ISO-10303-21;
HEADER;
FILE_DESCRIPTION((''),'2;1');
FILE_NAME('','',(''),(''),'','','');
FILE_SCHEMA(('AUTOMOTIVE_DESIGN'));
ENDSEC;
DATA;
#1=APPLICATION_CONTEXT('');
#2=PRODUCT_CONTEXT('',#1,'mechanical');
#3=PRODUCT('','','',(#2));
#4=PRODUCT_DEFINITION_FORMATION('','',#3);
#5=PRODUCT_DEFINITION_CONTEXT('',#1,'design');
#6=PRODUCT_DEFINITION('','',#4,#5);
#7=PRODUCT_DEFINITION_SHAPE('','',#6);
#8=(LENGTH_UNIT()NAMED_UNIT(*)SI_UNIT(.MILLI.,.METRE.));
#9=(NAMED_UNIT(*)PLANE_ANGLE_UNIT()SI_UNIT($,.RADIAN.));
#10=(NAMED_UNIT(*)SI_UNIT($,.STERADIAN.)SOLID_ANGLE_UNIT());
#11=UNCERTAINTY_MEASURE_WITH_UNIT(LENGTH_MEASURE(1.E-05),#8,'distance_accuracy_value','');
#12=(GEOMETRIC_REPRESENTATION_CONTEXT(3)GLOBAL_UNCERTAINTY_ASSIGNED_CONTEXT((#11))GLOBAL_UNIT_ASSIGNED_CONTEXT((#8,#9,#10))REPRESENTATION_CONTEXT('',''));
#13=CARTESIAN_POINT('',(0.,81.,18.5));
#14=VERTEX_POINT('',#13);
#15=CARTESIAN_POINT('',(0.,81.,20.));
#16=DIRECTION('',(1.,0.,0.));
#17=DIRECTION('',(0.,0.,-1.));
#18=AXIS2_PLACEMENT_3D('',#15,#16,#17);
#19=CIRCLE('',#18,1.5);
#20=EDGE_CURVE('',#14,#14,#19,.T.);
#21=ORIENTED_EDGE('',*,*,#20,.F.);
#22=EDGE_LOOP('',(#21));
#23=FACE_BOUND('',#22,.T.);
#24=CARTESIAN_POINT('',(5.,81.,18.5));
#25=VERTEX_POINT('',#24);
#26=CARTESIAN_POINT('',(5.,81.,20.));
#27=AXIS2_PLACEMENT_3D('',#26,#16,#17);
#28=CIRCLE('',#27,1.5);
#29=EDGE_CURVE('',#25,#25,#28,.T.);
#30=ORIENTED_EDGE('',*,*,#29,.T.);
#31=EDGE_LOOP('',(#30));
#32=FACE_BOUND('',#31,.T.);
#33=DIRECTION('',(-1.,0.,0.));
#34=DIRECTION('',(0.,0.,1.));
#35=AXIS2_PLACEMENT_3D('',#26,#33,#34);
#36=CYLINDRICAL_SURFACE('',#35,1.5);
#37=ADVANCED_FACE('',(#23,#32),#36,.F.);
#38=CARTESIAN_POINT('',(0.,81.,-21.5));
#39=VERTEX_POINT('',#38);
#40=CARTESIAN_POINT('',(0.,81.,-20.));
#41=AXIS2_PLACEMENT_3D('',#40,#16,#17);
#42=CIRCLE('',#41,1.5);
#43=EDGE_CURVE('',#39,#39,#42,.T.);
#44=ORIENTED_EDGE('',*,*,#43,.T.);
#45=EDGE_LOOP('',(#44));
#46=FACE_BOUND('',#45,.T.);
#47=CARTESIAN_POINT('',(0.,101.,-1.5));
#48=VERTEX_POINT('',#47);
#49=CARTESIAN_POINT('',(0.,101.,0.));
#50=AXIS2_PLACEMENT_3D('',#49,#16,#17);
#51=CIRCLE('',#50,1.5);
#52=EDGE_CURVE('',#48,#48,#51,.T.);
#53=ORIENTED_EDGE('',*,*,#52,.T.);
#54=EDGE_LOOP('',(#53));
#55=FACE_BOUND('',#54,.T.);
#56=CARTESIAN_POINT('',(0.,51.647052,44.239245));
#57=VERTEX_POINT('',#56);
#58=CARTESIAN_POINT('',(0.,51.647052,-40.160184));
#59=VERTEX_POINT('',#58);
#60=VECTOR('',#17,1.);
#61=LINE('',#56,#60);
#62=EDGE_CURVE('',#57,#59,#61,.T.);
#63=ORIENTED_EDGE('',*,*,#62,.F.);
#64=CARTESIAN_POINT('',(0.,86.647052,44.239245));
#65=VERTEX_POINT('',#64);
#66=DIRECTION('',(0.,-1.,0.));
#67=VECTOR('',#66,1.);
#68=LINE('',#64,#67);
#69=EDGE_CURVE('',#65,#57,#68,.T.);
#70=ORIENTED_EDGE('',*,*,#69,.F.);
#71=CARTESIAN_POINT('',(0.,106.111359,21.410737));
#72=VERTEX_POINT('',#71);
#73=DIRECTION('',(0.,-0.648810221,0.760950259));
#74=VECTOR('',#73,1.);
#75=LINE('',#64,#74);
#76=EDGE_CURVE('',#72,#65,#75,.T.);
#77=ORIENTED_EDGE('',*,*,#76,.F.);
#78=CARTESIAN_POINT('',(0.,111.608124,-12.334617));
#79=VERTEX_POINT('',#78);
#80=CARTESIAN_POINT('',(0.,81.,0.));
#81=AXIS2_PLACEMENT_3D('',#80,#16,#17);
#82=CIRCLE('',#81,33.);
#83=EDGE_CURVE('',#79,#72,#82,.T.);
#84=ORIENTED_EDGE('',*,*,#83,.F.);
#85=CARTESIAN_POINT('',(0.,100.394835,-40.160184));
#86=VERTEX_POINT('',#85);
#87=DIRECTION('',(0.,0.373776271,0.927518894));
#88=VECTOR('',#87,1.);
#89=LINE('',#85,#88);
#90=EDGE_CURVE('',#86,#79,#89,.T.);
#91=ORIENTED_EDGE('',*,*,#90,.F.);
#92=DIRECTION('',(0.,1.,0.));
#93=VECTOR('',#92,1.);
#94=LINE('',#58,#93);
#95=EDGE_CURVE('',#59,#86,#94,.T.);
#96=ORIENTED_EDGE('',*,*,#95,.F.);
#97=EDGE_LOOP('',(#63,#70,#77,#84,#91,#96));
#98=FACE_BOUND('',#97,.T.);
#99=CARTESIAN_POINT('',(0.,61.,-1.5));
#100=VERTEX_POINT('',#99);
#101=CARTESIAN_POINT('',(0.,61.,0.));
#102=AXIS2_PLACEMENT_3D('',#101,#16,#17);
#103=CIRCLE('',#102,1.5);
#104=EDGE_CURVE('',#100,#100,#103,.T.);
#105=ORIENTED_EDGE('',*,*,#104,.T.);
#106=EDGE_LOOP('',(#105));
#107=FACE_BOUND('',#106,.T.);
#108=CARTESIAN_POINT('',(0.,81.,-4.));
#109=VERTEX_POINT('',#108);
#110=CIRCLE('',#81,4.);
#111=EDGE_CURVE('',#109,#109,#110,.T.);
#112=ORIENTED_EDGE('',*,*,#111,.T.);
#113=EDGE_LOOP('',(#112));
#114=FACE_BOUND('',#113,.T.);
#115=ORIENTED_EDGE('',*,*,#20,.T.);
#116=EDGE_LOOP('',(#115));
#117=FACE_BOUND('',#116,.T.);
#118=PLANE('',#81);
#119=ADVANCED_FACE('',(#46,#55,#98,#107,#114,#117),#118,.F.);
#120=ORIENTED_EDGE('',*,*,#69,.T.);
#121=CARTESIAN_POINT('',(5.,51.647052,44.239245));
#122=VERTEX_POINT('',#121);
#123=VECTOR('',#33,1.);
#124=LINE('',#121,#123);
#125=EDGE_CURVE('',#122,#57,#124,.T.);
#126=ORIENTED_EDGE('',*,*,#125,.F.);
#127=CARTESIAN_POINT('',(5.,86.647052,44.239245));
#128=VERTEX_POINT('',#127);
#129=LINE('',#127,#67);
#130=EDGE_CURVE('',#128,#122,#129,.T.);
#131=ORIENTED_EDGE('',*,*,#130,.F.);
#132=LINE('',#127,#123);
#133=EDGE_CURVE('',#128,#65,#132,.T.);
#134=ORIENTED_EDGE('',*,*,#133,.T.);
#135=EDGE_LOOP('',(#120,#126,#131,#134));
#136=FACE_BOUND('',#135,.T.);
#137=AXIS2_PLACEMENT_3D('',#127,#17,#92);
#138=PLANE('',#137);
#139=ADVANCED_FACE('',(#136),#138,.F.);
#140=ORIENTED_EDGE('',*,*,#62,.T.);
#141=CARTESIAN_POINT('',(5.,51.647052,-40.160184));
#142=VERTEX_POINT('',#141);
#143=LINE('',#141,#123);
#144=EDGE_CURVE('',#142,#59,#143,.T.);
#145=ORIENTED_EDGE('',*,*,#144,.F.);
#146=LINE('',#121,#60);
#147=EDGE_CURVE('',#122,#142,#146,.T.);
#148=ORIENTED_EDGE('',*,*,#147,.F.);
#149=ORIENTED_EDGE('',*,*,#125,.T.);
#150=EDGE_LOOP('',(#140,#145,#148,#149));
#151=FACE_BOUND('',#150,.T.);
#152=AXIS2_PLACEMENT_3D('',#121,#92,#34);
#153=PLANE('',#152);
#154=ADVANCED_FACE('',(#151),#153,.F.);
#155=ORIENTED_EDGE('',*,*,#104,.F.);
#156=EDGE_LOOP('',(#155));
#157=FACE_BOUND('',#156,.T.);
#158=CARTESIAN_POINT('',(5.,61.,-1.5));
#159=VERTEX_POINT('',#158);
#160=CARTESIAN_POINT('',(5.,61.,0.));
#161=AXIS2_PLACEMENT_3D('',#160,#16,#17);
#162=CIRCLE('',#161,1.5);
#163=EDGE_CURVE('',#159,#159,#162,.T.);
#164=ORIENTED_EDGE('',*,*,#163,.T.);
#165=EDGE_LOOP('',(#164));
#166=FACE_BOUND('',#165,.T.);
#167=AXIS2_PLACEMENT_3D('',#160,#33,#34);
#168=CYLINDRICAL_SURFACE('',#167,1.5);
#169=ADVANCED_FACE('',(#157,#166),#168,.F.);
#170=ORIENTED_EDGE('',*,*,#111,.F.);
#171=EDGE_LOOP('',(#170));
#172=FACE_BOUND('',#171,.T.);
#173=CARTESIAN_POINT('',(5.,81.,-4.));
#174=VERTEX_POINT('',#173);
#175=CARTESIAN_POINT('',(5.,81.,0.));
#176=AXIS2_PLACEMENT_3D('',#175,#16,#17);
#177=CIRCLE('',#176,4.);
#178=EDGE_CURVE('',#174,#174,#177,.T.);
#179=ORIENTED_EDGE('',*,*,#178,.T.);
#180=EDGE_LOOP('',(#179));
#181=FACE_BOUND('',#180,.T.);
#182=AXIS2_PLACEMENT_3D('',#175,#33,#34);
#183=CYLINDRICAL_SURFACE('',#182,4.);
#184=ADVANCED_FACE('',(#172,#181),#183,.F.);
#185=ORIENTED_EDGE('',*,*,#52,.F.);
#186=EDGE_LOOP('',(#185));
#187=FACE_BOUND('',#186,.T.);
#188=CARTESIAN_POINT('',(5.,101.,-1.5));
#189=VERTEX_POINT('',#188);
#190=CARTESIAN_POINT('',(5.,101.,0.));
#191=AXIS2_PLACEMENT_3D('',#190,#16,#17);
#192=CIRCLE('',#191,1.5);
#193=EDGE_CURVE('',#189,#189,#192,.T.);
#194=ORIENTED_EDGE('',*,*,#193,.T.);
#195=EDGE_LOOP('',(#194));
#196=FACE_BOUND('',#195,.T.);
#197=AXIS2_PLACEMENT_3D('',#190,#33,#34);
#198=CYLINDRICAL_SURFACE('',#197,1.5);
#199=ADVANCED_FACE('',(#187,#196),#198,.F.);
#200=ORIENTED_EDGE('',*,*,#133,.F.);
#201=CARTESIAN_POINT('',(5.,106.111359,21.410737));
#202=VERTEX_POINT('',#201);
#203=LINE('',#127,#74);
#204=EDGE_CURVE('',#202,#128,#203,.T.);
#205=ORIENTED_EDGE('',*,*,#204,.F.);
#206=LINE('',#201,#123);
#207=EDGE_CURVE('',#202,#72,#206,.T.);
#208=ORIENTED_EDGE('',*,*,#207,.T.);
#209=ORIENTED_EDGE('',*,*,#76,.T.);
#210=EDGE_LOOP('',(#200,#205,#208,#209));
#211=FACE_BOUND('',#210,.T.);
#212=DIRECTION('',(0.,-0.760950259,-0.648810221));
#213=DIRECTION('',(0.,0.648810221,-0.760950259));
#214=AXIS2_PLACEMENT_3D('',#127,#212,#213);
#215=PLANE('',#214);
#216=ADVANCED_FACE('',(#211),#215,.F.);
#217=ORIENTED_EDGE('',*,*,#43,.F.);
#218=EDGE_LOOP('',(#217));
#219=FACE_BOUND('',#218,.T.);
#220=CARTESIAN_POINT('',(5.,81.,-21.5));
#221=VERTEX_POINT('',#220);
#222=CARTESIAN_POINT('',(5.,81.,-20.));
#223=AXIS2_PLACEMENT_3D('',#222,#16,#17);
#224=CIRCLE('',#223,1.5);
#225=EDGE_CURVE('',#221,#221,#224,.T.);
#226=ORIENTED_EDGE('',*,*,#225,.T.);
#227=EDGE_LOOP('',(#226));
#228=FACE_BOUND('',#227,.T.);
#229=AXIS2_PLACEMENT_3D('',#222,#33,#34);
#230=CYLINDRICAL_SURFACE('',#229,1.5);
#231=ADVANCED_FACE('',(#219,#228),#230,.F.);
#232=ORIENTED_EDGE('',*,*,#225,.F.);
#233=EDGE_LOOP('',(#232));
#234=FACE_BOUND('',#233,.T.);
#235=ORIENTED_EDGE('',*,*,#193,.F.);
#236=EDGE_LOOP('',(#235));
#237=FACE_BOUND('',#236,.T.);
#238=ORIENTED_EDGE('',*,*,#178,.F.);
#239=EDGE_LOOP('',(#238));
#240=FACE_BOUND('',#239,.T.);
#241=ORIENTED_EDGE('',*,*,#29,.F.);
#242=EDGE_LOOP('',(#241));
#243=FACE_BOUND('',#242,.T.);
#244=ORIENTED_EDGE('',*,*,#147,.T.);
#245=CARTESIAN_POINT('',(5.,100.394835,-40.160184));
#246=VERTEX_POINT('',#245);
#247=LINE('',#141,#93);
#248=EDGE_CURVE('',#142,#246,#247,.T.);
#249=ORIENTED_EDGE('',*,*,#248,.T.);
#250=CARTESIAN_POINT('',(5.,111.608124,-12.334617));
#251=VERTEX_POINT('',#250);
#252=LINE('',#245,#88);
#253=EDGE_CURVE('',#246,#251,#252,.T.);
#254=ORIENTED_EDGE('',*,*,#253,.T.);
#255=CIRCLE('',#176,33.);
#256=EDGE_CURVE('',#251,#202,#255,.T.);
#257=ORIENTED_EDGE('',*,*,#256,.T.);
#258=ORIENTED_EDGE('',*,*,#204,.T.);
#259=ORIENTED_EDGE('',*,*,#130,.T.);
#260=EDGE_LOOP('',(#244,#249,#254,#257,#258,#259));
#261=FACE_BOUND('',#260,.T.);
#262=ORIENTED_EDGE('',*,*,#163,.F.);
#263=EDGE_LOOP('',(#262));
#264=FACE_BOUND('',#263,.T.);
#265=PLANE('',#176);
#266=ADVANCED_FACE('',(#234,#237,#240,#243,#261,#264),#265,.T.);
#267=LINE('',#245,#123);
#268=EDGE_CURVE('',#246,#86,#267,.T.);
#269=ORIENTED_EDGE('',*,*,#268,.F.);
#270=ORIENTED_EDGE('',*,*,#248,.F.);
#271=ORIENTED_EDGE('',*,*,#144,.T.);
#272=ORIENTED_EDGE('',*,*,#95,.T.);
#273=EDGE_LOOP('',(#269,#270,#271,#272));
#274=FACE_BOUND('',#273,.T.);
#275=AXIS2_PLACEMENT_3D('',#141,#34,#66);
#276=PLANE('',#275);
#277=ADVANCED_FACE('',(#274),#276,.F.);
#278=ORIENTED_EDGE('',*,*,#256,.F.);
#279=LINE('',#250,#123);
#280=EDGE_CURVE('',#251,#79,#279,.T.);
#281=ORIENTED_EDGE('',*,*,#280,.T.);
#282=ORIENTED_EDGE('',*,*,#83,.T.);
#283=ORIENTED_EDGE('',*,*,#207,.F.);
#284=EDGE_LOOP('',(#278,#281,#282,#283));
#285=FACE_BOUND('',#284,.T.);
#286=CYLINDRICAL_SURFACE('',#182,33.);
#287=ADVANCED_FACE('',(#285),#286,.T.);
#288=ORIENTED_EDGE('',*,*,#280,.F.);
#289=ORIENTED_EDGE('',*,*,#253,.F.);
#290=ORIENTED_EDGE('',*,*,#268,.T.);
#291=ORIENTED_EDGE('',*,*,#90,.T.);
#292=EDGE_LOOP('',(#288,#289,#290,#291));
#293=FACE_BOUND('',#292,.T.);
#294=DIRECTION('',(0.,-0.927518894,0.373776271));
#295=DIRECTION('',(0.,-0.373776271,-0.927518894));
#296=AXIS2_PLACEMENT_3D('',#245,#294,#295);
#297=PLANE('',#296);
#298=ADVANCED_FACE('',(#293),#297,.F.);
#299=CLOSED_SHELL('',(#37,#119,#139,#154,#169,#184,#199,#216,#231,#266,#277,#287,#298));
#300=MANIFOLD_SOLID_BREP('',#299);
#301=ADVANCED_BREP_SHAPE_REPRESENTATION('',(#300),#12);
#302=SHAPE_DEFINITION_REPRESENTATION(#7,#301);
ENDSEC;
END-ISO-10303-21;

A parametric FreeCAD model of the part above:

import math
import FreeCAD as App
import Part
import Sketcher

V = App.Vector

doc = App.newDocument("Part")
body = doc.addObject("PartDesign::Body", "Body")

sketch1 = body.newObject("Sketcher::SketchObject", "Sketch")
sketch1.AttachmentSupport = (doc.getObject("YZ_Plane"), [""])
sketch1.MapMode = "FlatFace"
sketch1.addGeometry(Part.LineSegment(V(51.647052, -40.160184, 0), V(100.394835, -40.160184, 0)), False)
sketch1.addGeometry(Part.LineSegment(V(100.394835, -40.160184, 0), V(111.608124, -12.334617, 0)), False)
sketch1.addGeometry(Part.ArcOfCircle(Part.Circle(V(81, 0, 0), V(0, 0, 1), 33), math.radians(-21.948699), math.radians(40.451958)), False)
sketch1.addGeometry(Part.LineSegment(V(106.111359, 21.410737, 0), V(86.647052, 44.239245, 0)), False)
sketch1.addGeometry(Part.LineSegment(V(86.647052, 44.239245, 0), V(51.647052, 44.239245, 0)), False)
sketch1.addGeometry(Part.LineSegment(V(51.647052, 44.239245, 0), V(51.647052, -40.160184, 0)), False)
sketch1.addConstraint(Sketcher.Constraint("Coincident", 0, 2, 1, 1))
sketch1.addConstraint(Sketcher.Constraint("Tangent", 1, 2, 2, 1))
sketch1.addConstraint(Sketcher.Constraint("Tangent", 2, 2, 3, 1))
sketch1.addConstraint(Sketcher.Constraint("Coincident", 3, 2, 4, 1))
sketch1.addConstraint(Sketcher.Constraint("Coincident", 4, 2, 5, 1))
sketch1.addConstraint(Sketcher.Constraint("Coincident", 5, 2, 0, 1))
sketch1.addConstraint(Sketcher.Constraint("Horizontal", 0))
sketch1.addConstraint(Sketcher.Constraint("Horizontal", 4))
sketch1.addConstraint(Sketcher.Constraint("Vertical", 5))
sketch1.addConstraint(Sketcher.Constraint("PointOnObject", 2, 3, -1))
sketch1.addConstraint(Sketcher.Constraint("Equal", 1, 3))
sketch1.addConstraint(Sketcher.Constraint("Radius", 2, 33.0))
sketch1.addConstraint(Sketcher.Constraint("DistanceX", 4, 2, 4, 1, 35.0))
sketch1.addConstraint(Sketcher.Constraint("Distance", 1, 30.0))
sketch1.addConstraint(Sketcher.Constraint("DistanceX", -1, 1, 2, 3, 81.0))
sketch1.addConstraint(Sketcher.Constraint("DistanceY", 5, 2, 5, 1, 84.399429))
sketch1.addConstraint(Sketcher.Constraint("DistanceX", 0, 1, 0, 2, 48.747783))
pad1 = body.newObject("PartDesign::Pad", "Pad")
pad1.Profile = sketch1
pad1.Length = 5

sketch2 = body.newObject("Sketcher::SketchObject", "Sketch001")
sketch2.AttachmentSupport = (doc.getObject("YZ_Plane"), [""])
sketch2.MapMode = "FlatFace"
sketch2.addGeometry(Part.Circle(V(0, 95, 0), V(0, 0, 1), 4), False)
sketch2.addGeometry(Part.Circle(V(0, -201, 0), V(0, 0, 1), 4), False)
sketch2.addGeometry(Part.Circle(V(101, 0, 0), V(0, 0, 1), 1.5), False)
sketch2.addGeometry(Part.Circle(V(61, 0, 0), V(0, 0, 1), 1.5), False)
sketch2.addGeometry(Part.Circle(V(81, -20, 0), V(0, 0, 1), 1.5), False)
sketch2.addGeometry(Part.Circle(V(81, 20, 0), V(0, 0, 1), 1.5), False)
sketch2.addGeometry(Part.Circle(V(81, 0, 0), V(0, 0, 1), 4), False)
sketch2.addConstraint(Sketcher.Constraint("Equal", 0, 1))
sketch2.addConstraint(Sketcher.Constraint("Equal", 2, 3))
sketch2.addConstraint(Sketcher.Constraint("Equal", 3, 4))
sketch2.addConstraint(Sketcher.Constraint("Equal", 4, 5))
sketch2.addConstraint(Sketcher.Constraint("Equal", 1, 6))
sketch2.addConstraint(Sketcher.Constraint("Symmetric", 4, 3, 5, 3, -1))
sketch2.addConstraint(Sketcher.Constraint("PointOnObject", 0, 3, -2))
sketch2.addConstraint(Sketcher.Constraint("PointOnObject", 1, 3, -2))
sketch2.addConstraint(Sketcher.Constraint("PointOnObject", 2, 3, -1))
sketch2.addConstraint(Sketcher.Constraint("PointOnObject", 3, 3, -1))
sketch2.addConstraint(Sketcher.Constraint("PointOnObject", 6, 3, -1))
sketch2.addConstraint(Sketcher.Constraint("Vertical", 5, 3, 6, 3))
sketch2.addConstraint(Sketcher.Constraint("Diameter", 0, 8.0))
sketch2.addConstraint(Sketcher.Constraint("Diameter", 2, 3.0))
sketch2.addConstraint(Sketcher.Constraint("DistanceY", -1, 1, 0, 3, 95.0))
sketch2.addConstraint(Sketcher.Constraint("DistanceY", 1, 3, -1, 1, 201.0))
sketch2.addConstraint(Sketcher.Constraint("DistanceX", -1, 1, 2, 3, 101.0))
sketch2.addConstraint(Sketcher.Constraint("DistanceX", -1, 1, 3, 3, 61.0))
sketch2.addConstraint(Sketcher.Constraint("DistanceX", -1, 1, 4, 3, 81.0))
sketch2.addConstraint(Sketcher.Constraint("DistanceY", 4, 3, -1, 1, 20.0))
pocket1 = body.newObject("PartDesign::Pocket", "Pocket")
pocket1.Profile = sketch2
pocket1.Type = "ThroughAll"
pocket1.Reversed = True

doc.recompute()
